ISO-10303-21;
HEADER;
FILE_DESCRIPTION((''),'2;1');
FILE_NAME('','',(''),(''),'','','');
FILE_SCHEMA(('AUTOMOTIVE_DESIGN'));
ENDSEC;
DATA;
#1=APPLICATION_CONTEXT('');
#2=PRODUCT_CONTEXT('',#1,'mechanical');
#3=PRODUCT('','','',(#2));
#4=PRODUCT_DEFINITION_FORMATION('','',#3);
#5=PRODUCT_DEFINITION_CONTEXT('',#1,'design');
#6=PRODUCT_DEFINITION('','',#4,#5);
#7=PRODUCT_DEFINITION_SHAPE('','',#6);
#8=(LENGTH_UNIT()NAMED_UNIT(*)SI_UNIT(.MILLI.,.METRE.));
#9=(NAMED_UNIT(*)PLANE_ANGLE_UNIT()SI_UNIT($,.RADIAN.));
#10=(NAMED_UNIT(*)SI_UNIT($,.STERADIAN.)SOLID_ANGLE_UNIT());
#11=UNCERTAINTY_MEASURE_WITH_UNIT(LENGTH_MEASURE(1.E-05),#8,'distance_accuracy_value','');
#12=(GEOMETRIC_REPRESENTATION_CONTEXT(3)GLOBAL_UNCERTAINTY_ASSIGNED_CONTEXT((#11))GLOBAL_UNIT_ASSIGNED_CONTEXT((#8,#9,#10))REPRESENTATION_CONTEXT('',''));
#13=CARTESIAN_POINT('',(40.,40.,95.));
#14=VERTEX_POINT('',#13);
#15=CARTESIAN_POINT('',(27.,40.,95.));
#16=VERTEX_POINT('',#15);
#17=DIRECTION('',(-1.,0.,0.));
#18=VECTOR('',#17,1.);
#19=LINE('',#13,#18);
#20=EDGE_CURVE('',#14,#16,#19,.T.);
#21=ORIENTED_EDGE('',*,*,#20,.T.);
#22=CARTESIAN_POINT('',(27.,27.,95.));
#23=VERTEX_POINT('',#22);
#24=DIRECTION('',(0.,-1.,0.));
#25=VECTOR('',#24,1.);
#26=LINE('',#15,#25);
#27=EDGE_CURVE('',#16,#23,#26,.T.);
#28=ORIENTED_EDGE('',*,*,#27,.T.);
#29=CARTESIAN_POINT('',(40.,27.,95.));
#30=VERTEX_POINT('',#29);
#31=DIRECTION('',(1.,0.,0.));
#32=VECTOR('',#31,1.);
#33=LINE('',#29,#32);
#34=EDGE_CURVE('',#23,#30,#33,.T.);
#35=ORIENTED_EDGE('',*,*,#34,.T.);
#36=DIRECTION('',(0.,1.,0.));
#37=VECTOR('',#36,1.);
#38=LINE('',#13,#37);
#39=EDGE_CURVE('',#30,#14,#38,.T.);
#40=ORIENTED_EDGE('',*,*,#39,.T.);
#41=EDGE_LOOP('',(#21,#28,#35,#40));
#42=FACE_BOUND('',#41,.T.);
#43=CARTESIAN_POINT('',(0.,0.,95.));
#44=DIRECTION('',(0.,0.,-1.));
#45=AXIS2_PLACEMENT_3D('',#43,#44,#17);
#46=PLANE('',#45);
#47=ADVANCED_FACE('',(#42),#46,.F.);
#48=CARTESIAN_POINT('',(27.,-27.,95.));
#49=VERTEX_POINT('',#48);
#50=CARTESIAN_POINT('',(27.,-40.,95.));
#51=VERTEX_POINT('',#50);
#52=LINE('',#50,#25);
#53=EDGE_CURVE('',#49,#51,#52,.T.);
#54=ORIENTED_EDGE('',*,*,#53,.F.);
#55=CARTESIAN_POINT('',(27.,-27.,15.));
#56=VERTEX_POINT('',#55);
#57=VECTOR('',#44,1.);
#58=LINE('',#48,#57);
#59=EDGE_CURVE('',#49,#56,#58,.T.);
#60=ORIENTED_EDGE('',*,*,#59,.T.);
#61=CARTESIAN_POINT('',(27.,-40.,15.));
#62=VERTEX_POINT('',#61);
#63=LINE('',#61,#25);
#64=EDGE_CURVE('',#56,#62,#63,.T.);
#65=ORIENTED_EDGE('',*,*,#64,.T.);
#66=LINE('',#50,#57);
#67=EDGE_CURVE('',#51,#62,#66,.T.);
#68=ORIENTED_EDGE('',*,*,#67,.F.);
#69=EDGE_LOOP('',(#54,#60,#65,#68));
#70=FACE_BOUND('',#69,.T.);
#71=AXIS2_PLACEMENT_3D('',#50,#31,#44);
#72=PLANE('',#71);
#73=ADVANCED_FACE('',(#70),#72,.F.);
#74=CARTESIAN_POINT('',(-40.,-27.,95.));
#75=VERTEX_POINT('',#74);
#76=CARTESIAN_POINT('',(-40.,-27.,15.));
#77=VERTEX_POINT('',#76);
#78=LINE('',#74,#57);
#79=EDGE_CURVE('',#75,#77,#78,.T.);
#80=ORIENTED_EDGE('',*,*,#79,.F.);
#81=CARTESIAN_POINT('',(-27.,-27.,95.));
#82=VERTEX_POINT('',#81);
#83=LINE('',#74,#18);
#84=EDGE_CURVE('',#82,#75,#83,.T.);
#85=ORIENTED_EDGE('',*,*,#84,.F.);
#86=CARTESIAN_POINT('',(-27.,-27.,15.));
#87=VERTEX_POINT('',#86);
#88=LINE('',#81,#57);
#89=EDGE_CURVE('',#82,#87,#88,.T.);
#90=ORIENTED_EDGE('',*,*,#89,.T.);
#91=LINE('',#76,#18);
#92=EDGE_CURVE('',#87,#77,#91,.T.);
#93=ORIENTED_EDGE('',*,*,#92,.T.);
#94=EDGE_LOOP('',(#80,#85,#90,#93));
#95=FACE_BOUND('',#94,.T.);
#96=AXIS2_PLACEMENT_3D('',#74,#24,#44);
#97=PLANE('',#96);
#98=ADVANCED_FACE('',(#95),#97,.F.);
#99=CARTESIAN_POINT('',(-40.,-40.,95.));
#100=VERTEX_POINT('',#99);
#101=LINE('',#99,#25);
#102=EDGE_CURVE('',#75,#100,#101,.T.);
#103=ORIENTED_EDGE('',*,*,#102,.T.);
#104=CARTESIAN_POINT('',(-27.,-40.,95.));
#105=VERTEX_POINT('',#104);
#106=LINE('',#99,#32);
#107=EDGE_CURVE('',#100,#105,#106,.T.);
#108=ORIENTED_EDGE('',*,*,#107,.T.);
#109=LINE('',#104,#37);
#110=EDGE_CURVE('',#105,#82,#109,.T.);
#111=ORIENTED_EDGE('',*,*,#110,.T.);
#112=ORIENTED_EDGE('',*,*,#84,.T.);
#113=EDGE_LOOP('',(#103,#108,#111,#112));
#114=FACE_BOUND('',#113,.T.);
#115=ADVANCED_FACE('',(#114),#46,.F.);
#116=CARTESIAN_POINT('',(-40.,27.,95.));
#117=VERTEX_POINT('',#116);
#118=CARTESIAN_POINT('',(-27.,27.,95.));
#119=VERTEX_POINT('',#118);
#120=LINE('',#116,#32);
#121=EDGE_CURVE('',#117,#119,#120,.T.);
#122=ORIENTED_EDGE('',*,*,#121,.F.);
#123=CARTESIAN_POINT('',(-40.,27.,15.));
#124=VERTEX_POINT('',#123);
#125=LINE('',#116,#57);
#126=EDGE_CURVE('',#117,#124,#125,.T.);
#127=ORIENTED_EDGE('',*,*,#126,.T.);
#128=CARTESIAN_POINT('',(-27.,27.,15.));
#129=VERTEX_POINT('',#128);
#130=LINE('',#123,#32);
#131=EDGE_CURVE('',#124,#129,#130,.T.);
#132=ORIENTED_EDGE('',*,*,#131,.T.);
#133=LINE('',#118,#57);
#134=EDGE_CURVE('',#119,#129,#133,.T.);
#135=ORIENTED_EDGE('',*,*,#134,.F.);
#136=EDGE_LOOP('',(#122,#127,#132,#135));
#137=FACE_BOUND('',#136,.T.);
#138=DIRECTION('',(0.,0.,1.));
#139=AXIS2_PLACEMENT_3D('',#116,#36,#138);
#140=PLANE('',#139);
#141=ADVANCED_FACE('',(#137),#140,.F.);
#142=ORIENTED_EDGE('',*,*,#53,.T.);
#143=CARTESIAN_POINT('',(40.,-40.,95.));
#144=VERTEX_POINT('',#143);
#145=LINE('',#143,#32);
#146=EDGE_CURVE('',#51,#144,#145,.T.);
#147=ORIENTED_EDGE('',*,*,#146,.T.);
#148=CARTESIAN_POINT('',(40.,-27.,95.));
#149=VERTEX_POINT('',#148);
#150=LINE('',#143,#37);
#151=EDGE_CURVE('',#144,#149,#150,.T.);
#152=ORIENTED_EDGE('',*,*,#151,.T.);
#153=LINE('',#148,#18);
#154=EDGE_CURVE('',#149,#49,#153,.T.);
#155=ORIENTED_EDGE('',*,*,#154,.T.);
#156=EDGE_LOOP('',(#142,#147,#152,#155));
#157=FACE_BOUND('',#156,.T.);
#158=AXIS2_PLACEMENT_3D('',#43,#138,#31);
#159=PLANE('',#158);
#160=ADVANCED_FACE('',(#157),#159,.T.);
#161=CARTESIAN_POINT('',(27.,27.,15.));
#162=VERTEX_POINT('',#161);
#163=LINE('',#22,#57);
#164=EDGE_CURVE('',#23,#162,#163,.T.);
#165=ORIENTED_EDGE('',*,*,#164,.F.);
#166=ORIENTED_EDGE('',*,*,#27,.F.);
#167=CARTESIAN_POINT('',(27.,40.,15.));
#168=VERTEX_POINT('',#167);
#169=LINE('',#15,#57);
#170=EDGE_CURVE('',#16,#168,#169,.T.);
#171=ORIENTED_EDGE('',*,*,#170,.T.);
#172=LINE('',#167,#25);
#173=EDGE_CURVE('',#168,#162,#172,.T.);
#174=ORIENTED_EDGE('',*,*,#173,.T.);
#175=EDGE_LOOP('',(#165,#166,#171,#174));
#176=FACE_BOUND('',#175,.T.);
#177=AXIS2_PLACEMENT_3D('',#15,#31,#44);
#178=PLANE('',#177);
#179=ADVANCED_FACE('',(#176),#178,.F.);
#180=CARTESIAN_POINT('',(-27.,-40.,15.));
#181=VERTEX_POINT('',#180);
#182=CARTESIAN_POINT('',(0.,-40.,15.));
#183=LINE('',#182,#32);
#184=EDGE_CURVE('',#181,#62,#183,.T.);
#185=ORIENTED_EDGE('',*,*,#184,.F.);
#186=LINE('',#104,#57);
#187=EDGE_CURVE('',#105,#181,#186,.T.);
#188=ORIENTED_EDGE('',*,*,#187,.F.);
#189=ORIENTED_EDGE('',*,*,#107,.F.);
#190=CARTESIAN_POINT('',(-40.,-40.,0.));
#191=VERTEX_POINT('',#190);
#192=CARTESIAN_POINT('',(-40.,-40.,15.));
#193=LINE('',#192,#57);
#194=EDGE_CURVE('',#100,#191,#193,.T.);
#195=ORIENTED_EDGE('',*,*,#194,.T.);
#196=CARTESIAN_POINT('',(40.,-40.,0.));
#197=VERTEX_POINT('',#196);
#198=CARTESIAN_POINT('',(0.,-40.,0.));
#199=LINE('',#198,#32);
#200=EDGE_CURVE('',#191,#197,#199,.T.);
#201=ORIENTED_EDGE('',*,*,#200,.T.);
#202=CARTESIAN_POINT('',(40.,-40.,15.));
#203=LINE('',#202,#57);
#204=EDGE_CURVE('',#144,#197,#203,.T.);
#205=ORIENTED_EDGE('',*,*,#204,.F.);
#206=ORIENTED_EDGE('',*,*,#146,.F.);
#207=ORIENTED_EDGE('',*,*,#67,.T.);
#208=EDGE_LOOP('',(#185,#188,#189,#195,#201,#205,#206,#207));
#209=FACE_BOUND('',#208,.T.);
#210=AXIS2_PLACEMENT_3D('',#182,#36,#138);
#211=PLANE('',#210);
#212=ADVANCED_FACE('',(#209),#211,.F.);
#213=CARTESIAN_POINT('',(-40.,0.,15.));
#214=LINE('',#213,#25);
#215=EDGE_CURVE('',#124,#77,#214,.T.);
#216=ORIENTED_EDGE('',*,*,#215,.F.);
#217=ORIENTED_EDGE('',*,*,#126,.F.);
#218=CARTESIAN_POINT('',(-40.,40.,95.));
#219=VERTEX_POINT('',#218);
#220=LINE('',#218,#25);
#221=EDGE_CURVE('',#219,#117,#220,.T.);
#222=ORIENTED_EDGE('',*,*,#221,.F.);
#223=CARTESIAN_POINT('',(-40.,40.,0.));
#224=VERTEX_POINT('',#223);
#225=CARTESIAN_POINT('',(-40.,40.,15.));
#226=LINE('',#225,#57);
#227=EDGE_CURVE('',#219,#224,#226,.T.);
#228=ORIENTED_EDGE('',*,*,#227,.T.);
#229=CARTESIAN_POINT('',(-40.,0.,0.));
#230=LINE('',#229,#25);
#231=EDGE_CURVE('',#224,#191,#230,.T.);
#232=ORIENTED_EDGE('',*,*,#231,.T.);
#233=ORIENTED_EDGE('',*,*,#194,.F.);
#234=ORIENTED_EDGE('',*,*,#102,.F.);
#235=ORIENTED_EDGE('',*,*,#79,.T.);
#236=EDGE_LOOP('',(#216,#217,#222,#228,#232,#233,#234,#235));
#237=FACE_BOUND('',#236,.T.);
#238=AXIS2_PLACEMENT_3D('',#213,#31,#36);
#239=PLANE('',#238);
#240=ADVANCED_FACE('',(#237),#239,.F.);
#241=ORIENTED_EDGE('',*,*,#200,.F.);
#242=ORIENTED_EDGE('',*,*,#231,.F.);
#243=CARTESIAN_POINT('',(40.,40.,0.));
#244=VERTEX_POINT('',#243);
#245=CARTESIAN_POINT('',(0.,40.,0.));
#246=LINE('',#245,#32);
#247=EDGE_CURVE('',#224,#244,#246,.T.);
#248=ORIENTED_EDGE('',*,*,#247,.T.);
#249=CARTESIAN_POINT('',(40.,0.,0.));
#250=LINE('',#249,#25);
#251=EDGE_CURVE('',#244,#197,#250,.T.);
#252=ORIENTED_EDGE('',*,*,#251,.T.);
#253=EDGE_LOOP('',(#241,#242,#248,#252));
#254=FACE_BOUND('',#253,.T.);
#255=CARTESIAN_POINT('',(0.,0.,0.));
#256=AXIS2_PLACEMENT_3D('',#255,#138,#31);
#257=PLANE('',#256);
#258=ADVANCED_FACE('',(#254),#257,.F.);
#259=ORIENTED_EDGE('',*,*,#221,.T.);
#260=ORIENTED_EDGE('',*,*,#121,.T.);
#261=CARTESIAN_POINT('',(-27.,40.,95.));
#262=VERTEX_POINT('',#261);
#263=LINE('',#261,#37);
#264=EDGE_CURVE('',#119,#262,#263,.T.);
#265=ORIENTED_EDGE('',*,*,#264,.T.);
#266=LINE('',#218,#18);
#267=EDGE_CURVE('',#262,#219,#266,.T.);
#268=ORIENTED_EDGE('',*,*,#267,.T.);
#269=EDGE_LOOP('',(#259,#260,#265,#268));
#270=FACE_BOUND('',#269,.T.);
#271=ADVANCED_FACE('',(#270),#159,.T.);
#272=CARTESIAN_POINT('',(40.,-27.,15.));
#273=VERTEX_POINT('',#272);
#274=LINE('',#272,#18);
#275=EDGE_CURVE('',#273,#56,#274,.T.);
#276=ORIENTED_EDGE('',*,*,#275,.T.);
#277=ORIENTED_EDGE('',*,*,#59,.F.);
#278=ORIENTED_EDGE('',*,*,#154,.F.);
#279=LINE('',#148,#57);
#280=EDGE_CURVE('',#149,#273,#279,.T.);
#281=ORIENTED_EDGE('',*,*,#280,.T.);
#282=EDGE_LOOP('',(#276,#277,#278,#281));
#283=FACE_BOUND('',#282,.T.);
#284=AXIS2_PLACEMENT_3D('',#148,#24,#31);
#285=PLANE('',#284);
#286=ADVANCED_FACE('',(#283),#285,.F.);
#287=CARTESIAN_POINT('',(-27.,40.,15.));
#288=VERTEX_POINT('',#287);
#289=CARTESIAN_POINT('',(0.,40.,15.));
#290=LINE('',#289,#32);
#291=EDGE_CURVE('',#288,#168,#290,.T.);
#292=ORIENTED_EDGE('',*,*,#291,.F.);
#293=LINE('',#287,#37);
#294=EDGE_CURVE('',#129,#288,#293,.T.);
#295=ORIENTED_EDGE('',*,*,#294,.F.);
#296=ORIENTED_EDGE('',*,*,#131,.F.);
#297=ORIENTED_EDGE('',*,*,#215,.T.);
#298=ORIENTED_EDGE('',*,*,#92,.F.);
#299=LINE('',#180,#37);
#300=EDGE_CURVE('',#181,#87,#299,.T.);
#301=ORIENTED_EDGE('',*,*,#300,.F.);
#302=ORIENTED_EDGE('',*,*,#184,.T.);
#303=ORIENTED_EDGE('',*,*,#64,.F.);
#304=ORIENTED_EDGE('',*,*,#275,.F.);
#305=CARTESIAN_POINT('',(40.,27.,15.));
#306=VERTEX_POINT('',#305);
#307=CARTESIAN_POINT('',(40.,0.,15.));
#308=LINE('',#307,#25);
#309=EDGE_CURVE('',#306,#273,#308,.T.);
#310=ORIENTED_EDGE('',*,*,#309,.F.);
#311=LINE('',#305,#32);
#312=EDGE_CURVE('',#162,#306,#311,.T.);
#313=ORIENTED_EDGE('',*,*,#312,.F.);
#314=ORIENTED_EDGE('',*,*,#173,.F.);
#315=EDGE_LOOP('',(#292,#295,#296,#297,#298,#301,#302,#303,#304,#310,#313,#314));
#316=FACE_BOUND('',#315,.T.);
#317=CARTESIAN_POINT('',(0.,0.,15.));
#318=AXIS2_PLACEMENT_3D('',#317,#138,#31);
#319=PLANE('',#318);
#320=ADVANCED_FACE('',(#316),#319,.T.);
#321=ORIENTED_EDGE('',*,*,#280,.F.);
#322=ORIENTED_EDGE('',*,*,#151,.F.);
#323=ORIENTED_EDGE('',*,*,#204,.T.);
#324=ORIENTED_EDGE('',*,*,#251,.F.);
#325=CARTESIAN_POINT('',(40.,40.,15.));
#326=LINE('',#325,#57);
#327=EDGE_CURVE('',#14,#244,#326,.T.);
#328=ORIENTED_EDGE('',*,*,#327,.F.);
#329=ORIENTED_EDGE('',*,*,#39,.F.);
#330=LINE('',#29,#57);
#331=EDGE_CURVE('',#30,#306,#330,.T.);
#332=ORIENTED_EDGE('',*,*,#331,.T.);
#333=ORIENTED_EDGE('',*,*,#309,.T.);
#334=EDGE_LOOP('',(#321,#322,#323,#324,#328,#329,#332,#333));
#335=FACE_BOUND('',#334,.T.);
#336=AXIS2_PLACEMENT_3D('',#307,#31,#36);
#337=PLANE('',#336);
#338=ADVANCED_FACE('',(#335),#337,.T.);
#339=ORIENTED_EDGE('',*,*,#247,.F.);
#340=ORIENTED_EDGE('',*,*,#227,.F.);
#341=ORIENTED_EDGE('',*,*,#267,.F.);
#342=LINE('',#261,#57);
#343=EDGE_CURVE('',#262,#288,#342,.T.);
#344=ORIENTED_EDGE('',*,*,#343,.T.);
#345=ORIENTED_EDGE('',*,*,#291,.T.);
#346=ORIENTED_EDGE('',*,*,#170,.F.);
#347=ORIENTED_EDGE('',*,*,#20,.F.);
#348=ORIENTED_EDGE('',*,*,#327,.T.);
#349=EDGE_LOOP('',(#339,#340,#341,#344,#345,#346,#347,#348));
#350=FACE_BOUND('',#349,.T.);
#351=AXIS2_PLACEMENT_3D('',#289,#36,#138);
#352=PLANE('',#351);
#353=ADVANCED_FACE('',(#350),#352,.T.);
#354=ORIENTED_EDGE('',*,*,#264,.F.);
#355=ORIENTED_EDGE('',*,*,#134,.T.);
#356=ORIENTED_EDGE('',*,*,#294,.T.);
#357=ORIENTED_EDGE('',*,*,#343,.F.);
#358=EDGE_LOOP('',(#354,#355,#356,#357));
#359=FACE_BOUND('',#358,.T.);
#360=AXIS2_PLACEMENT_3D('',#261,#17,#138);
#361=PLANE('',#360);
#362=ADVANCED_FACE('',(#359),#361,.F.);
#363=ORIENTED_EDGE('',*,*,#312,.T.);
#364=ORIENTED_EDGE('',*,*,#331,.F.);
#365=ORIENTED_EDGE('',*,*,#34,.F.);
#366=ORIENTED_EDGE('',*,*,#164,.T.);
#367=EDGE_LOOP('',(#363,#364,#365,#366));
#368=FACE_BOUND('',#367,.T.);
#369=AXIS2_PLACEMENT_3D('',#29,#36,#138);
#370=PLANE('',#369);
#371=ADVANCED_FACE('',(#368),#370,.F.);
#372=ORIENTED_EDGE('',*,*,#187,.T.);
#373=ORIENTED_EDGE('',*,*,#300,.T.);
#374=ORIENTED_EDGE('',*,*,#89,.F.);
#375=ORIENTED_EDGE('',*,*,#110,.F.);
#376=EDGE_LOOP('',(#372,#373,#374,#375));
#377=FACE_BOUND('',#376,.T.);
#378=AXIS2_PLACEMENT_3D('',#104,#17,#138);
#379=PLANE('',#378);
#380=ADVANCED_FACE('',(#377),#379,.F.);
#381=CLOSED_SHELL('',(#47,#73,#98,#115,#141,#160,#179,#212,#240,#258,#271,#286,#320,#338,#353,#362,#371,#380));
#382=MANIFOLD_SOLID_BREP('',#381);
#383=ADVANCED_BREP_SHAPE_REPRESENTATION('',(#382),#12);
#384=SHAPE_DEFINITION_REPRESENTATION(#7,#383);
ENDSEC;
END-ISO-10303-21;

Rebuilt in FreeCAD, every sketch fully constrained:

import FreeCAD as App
import Part
import Sketcher
from FreeCAD import Vector

doc = App.newDocument("Part")
params = doc.addObject("Spreadsheet::Sheet", "Params")
for row, (alias, value) in enumerate([
    ("sketch1_width", "80 mm"),
    ("pad1_length", "15 mm"),
    ("sketch2_width", "13 mm"),
    ("pad2_length", "80 mm"),
], start=1):
    params.set(f"A{row}", alias)
    params.set(f"B{row}", "=" + value)
    params.setAlias(f"B{row}", alias)

body = doc.addObject("PartDesign::Body", "Body")

sketch1 = body.newObject("Sketcher::SketchObject", "Sketch")
sketch1.AttachmentSupport = (doc.getObject("XY_Plane"), [""])
sketch1.MapMode = "FlatFace"
sketch1.addGeometry(Part.LineSegment(Vector(-40, 40, 0), Vector(-40, -25.150758, 0)), False)
sketch1.addGeometry(Part.LineSegment(Vector(-40, -25.150758, 0), Vector(-40, -40, 0)), False)
sketch1.addGeometry(Part.LineSegment(Vector(-40, -40, 0), Vector(40, -40, 0)), False)
sketch1.addGeometry(Part.LineSegment(Vector(40, -40, 0), Vector(40, 25.150758, 0)), False)
sketch1.addGeometry(Part.LineSegment(Vector(40, 25.150758, 0), Vector(40, 40, 0)), False)
sketch1.addGeometry(Part.LineSegment(Vector(40, 40, 0), Vector(25.150758, 40, 0)), False)
sketch1.addGeometry(Part.LineSegment(Vector(25.150758, 40, 0), Vector(-25.150758, 40, 0)), False)
sketch1.addGeometry(Part.LineSegment(Vector(-25.150758, 40, 0), Vector(-40, 40, 0)), False)
sketch1.addConstraint(Sketcher.Constraint("Coincident", 0, 2, 1, 1))
sketch1.addConstraint(Sketcher.Constraint("Coincident", 1, 2, 2, 1))
sketch1.addConstraint(Sketcher.Constraint("Coincident", 2, 2, 3, 1))
sketch1.addConstraint(Sketcher.Constraint("Coincident", 3, 2, 4, 1))
sketch1.addConstraint(Sketcher.Constraint("Coincident", 4, 2, 5, 1))
sketch1.addConstraint(Sketcher.Constraint("Coincident", 5, 2, 6, 1))
sketch1.addConstraint(Sketcher.Constraint("Coincident", 6, 2, 7, 1))
sketch1.addConstraint(Sketcher.Constraint("Coincident", 7, 2, 0, 1))
sketch1.addConstraint(Sketcher.Constraint("Vertical", 0))
sketch1.addConstraint(Sketcher.Constraint("Vertical", 1))
sketch1.addConstraint(Sketcher.Constraint("Horizontal", 2))
sketch1.addConstraint(Sketcher.Constraint("Vertical", 3))
sketch1.addConstraint(Sketcher.Constraint("Vertical", 4))
sketch1.addConstraint(Sketcher.Constraint("Horizontal", 5))
sketch1.addConstraint(Sketcher.Constraint("Horizontal", 6))
sketch1.addConstraint(Sketcher.Constraint("Horizontal", 7))
sketch1.addConstraint(Sketcher.Constraint("Symmetric", 0, 2, 3, 2, -1, 1))
sketch1.addConstraint(Sketcher.Constraint("Equal", 5, 7))
sketch1.addConstraint(Sketcher.Constraint("Equal", 7, 1))
sketch1.addConstraint(Sketcher.Constraint("Equal", 0, 3))
sketch1.addConstraint(Sketcher.Constraint("DistanceX", 2, 1, 2, 2, 80.0))
sketch1.addConstraint(Sketcher.Constraint("DistanceY", 1, 2, -1, 1, 40.0))
sketch1.addConstraint(Sketcher.Constraint("DistanceX", 5, 2, 5, 1, 14.849242))
sketch1.setExpression("Constraints[20]", "Params.sketch1_width")
pad1 = body.newObject("PartDesign::Pad", "Pad")
pad1.Profile = sketch1
pad1.setExpression("Length", "Params.pad1_length")

sketch2 = body.newObject("Sketcher::SketchObject", "Sketch001")
sketch2.AttachmentSupport = (doc.getObject("XY_Plane"), [""])
sketch2.MapMode = "FlatFace"
sketch2.AttachmentOffset = App.Placement(Vector(0, 0, 15), App.Rotation())
sketch2.addGeometry(Part.LineSegment(Vector(-40, 40, 0), Vector(-40, 27, 0)), False)
sketch2.addGeometry(Part.LineSegment(Vector(-40, 27, 0), Vector(-27, 27, 0)), False)
sketch2.addGeometry(Part.LineSegment(Vector(-27, 27, 0), Vector(-27, 40, 0)), False)
sketch2.addGeometry(Part.LineSegment(Vector(-27, 40, 0), Vector(-40, 40, 0)), False)
sketch2.addGeometry(Part.LineSegment(Vector(27, 40, 0), Vector(27, 27, 0)), False)
sketch2.addGeometry(Part.LineSegment(Vector(27, 27, 0), Vector(40, 27, 0)), False)
sketch2.addGeometry(Part.LineSegment(Vector(40, 27, 0), Vector(40, 40, 0)), False)
sketch2.addGeometry(Part.LineSegment(Vector(40, 40, 0), Vector(27, 40, 0)), False)
sketch2.addGeometry(Part.LineSegment(Vector(-40, -27, 0), Vector(-40, -40, 0)), False)
sketch2.addGeometry(Part.LineSegment(Vector(-40, -40, 0), Vector(-27, -40, 0)), False)
sketch2.addGeometry(Part.LineSegment(Vector(-27, -40, 0), Vector(-27, -27, 0)), False)
sketch2.addGeometry(Part.LineSegment(Vector(-27, -27, 0), Vector(-40, -27, 0)), False)
sketch2.addGeometry(Part.LineSegment(Vector(27, -27, 0), Vector(27, -40, 0)), False)
sketch2.addGeometry(Part.LineSegment(Vector(27, -40, 0), Vector(40, -40, 0)), False)
sketch2.addGeometry(Part.LineSegment(Vector(40, -40, 0), Vector(40, -27, 0)), False)
sketch2.addGeometry(Part.LineSegment(Vector(40, -27, 0), Vector(27, -27, 0)), False)
sketch2.addConstraint(Sketcher.Constraint("Coincident", 0, 2, 1, 1))
sketch2.addConstraint(Sketcher.Constraint("Coincident", 1, 2, 2, 1))
sketch2.addConstraint(Sketcher.Constraint("Coincident", 2, 2, 3, 1))
sketch2.addConstraint(Sketcher.Constraint("Coincident", 3, 2, 0, 1))
sketch2.addConstraint(Sketcher.Constraint("Coincident", 4, 2, 5, 1))
sketch2.addConstraint(Sketcher.Constraint("Coincident", 5, 2, 6, 1))
sketch2.addConstraint(Sketcher.Constraint("Coincident", 6, 2, 7, 1))
sketch2.addConstraint(Sketcher.Constraint("Coincident", 7, 2, 4, 1))
sketch2.addConstraint(Sketcher.Constraint("Coincident", 8, 2, 9, 1))
sketch2.addConstraint(Sketcher.Constraint("Coincident", 9, 2, 10, 1))
sketch2.addConstraint(Sketcher.Constraint("Coincident", 10, 2, 11, 1))
sketch2.addConstraint(Sketcher.Constraint("Coincident", 11, 2, 8, 1))
sketch2.addConstraint(Sketcher.Constraint("Coincident", 12, 2, 13, 1))
sketch2.addConstraint(Sketcher.Constraint("Coincident", 13, 2, 14, 1))
sketch2.addConstraint(Sketcher.Constraint("Coincident", 14, 2, 15, 1))
sketch2.addConstraint(Sketcher.Constraint("Coincident", 15, 2, 12, 1))
sketch2.addConstraint(Sketcher.Constraint("Vertical", 0))
sketch2.addConstraint(Sketcher.Constraint("Horizontal", 1))
sketch2.addConstraint(Sketcher.Constraint("Vertical", 2))
sketch2.addConstraint(Sketcher.Constraint("Horizontal", 3))
sketch2.addConstraint(Sketcher.Constraint("Vertical", 4))
sketch2.addConstraint(Sketcher.Constraint("Horizontal", 5))
sketch2.addConstraint(Sketcher.Constraint("Vertical", 6))
sketch2.addConstraint(Sketcher.Constraint("Horizontal", 7))
sketch2.addConstraint(Sketcher.Constraint("Vertical", 8))
sketch2.addConstraint(Sketcher.Constraint("Horizontal", 9))
sketch2.addConstraint(Sketcher.Constraint("Vertical", 10))
sketch2.addConstraint(Sketcher.Constraint("Horizontal", 11))
sketch2.addConstraint(Sketcher.Constraint("Vertical", 12))
sketch2.addConstraint(Sketcher.Constraint("Horizontal", 13))
sketch2.addConstraint(Sketcher.Constraint("Vertical", 14))
sketch2.addConstraint(Sketcher.Constraint("Horizontal", 15))
sketch2.addConstraint(Sketcher.Constraint("Symmetric", 6, 2, 8, 2, -1, 1))
sketch2.addConstraint(Sketcher.Constraint("Symmetric", 4, 2, 10, 2, -1, 1))
sketch2.addConstraint(Sketcher.Constraint("Symmetric", 2, 2, 12, 2, -1, 1))
sketch2.addConstraint(Sketcher.Constraint("Symmetric", 0, 2, 14, 2, -1, 1))
sketch2.addConstraint(Sketcher.Constraint("Symmetric", 1, 2, 4, 2, -2))
sketch2.addConstraint(Sketcher.Constraint("Symmetric", 3, 2, 6, 2, -2))
sketch2.addConstraint(Sketcher.Constraint("Equal", 15, 0))
sketch2.addConstraint(Sketcher.Constraint("DistanceX", 1, 1, 1, 2, 13.0))
sketch2.addConstraint(Sketcher.Constraint("DistanceX", 0, 2, -1, 1, 40.0))
sketch2.addConstraint(Sketcher.Constraint("DistanceY", -1, 1, 0, 2, 27.0))
sketch2.setExpression("Constraints[39]", "Params.sketch2_width")
pad2 = body.newObject("PartDesign::Pad", "Pad001")
pad2.Profile = sketch2
pad2.setExpression("Length", "Params.pad2_length")

doc.recompute()
